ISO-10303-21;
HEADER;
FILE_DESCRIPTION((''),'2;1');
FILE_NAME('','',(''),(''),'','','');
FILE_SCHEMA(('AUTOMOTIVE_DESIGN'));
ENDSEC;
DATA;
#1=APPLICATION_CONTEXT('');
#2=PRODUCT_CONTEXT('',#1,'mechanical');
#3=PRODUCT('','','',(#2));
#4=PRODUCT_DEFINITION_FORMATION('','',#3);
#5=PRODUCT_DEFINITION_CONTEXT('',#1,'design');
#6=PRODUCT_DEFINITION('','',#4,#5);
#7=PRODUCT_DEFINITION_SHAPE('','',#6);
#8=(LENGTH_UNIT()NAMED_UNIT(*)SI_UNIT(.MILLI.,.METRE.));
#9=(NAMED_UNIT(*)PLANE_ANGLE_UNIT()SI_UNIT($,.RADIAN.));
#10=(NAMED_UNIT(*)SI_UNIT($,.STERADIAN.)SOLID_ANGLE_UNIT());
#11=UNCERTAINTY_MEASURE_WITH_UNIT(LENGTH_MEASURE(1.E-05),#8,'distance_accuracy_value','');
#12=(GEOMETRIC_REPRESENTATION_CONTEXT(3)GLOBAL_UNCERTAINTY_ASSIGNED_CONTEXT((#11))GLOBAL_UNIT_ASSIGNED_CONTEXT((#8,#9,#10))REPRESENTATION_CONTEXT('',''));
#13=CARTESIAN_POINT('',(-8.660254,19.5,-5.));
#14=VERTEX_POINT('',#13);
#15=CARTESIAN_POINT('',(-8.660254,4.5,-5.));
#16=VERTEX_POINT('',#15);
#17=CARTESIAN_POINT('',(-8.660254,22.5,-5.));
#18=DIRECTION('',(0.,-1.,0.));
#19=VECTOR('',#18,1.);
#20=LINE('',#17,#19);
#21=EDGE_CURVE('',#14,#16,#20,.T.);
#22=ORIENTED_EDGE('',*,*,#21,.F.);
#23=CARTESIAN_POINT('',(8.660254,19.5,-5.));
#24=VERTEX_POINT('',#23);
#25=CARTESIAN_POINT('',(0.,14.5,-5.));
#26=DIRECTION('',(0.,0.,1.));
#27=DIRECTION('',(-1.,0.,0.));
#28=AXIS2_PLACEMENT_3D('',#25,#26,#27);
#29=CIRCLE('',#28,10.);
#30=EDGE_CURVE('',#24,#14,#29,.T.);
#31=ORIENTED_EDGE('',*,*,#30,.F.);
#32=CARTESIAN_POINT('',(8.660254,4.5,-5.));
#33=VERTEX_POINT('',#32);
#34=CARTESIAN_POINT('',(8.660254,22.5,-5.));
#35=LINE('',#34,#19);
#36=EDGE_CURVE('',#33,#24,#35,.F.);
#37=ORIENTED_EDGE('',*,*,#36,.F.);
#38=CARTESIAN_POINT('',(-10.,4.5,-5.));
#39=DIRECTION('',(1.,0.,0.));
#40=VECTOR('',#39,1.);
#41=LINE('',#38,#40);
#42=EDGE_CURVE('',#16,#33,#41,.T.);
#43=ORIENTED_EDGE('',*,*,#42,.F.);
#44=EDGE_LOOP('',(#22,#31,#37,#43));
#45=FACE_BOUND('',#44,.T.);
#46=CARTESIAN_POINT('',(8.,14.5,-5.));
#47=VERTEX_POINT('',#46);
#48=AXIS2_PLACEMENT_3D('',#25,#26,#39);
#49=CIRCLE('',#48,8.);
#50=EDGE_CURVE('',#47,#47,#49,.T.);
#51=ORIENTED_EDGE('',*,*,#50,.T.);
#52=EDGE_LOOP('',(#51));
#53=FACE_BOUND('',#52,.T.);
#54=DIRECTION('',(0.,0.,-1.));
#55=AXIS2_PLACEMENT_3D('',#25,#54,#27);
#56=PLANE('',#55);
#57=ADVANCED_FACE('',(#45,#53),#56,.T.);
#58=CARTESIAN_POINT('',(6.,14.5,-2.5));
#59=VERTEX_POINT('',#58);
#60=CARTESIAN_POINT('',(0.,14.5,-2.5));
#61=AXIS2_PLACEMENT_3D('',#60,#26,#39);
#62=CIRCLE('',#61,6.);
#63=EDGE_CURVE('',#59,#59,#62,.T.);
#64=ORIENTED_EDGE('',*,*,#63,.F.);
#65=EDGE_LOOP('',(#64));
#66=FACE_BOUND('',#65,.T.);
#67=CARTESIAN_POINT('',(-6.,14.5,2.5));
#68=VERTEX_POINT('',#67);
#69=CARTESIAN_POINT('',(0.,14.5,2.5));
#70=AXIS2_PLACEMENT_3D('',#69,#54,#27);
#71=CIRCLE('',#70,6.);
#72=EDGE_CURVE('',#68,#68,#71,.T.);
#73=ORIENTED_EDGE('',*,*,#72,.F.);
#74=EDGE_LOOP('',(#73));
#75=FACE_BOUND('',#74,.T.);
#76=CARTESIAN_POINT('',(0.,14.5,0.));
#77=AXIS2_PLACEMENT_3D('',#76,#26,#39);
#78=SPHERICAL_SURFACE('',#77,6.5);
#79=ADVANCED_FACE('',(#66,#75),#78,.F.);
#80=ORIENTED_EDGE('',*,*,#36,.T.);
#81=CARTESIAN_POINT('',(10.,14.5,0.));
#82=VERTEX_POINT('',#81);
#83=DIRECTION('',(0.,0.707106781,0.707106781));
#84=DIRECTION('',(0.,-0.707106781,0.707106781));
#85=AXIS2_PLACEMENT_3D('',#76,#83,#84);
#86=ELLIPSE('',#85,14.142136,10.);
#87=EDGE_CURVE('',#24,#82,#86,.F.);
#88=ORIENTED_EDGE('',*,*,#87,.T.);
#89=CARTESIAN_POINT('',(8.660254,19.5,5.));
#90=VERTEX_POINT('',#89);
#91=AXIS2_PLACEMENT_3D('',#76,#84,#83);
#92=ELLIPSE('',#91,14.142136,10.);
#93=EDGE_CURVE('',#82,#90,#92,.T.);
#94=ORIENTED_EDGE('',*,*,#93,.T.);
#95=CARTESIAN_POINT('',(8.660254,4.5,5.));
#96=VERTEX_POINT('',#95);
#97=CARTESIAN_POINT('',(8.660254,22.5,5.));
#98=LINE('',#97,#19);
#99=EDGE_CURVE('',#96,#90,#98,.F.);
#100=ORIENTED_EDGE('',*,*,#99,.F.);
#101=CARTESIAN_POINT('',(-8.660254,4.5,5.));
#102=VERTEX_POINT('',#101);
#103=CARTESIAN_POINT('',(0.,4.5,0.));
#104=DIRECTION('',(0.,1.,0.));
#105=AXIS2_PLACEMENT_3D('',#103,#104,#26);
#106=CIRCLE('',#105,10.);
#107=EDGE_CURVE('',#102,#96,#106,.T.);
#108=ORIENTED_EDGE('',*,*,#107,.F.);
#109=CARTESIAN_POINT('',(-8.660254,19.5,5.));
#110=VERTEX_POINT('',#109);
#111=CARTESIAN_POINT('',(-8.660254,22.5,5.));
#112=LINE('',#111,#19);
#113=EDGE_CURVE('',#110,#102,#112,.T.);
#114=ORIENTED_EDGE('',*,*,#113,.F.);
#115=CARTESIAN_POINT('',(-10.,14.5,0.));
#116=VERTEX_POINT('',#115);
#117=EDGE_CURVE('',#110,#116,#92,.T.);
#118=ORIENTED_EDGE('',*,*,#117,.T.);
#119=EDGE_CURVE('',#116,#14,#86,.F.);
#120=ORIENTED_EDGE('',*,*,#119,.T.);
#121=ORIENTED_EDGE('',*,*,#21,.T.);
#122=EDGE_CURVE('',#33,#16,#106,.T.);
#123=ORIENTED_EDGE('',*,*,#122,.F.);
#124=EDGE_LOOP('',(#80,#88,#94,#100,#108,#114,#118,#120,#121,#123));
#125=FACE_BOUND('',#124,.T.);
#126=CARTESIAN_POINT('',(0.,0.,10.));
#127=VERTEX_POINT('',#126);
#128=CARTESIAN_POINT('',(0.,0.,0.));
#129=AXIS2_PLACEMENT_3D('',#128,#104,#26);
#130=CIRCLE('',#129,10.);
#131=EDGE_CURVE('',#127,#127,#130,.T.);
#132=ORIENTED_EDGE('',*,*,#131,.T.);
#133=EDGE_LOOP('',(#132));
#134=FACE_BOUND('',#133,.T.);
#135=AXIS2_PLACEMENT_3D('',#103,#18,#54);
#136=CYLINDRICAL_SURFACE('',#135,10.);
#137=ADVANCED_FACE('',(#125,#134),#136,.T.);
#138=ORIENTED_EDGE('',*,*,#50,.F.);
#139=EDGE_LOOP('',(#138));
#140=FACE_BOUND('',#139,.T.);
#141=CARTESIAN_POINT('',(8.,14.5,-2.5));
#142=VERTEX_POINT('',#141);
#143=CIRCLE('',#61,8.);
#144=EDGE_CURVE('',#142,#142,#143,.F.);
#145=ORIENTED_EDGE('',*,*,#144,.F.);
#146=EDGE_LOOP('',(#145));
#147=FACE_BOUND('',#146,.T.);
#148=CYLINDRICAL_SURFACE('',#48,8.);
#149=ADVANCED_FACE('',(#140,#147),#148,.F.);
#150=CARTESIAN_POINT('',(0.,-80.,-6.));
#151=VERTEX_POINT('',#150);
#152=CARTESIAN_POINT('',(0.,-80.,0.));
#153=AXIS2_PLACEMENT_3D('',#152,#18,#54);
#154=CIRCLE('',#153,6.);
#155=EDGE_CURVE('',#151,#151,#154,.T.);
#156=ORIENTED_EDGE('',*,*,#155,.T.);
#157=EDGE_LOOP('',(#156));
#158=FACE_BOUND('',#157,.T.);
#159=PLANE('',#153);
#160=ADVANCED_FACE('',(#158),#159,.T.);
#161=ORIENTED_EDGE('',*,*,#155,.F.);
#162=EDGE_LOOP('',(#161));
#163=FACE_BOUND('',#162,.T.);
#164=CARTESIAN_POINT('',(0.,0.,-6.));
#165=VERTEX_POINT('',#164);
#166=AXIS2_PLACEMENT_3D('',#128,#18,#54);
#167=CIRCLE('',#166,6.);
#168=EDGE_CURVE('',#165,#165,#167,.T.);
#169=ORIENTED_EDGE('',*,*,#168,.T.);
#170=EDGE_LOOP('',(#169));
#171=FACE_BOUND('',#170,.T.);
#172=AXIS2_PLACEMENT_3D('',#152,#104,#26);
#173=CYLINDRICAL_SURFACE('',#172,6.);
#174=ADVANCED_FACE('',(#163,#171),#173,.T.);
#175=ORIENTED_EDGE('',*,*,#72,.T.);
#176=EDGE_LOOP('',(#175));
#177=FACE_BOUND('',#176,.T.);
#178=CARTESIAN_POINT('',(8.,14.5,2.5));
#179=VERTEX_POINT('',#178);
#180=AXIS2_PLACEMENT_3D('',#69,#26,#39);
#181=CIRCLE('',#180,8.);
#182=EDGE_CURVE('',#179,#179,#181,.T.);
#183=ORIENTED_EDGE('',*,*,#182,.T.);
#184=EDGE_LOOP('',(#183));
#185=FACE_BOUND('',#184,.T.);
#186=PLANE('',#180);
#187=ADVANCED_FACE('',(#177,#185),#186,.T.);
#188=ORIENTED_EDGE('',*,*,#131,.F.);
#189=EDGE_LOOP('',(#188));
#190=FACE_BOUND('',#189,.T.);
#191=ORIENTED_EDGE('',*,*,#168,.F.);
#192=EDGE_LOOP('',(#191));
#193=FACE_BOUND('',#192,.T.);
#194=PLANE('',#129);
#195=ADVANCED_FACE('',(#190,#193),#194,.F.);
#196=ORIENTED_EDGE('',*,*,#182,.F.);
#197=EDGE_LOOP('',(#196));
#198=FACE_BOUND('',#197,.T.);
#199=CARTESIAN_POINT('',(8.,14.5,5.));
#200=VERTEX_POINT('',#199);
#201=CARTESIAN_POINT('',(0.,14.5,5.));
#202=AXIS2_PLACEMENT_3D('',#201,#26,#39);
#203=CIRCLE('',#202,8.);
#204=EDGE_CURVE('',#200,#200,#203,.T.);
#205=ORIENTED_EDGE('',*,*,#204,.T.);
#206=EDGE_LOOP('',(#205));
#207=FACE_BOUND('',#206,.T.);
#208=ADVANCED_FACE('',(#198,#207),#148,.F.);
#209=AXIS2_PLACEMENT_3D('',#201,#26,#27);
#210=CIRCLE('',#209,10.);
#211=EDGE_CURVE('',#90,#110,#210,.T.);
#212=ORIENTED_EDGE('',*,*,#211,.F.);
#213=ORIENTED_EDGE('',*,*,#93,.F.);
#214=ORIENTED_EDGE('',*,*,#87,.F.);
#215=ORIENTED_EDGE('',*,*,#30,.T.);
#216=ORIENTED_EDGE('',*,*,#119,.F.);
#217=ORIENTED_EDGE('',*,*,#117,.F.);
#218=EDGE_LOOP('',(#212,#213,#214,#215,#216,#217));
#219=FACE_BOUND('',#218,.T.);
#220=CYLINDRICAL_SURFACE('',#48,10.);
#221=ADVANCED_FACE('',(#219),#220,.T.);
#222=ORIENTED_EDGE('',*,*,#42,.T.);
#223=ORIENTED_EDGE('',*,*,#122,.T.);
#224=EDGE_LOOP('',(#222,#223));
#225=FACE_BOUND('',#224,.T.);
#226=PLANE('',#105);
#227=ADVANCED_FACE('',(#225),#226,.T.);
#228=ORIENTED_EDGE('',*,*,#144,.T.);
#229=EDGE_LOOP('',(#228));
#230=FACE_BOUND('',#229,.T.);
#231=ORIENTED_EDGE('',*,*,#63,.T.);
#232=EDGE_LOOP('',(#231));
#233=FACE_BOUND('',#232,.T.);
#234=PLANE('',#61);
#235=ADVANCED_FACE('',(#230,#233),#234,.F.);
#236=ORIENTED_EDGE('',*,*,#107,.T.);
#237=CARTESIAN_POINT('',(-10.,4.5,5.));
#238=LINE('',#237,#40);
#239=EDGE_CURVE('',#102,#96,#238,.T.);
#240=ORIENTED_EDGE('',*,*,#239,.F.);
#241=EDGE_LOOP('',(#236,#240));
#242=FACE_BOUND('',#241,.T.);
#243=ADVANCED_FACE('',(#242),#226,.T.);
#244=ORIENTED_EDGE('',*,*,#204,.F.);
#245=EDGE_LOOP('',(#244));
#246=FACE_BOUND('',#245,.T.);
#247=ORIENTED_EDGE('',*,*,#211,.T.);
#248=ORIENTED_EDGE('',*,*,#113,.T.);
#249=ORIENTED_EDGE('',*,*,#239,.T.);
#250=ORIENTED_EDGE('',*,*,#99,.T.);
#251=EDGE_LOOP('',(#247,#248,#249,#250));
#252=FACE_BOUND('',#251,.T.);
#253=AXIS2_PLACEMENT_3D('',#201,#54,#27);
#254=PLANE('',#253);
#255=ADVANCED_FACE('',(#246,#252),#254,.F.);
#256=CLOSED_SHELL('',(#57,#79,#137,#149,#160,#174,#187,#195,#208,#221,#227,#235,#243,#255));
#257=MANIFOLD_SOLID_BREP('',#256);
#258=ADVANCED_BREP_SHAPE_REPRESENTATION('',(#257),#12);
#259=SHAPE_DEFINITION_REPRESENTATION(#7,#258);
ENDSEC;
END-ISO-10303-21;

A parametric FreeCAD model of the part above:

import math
import FreeCAD as App
import Part
import Sketcher

doc = App.newDocument("Part")
body = doc.addObject("PartDesign::Body", "Body")

# Sketch on XZ plane
sketch1 = doc.addObject("Sketcher::SketchObject", "Sketch")
body.addObject(sketch1)
sketch1.AttachmentSupport = (doc.XZ_Plane, [""])
sketch1.MapMode = "FlatFace"
sketch1.addGeometry(Part.Circle(App.Vector(0, 0, 0), App.Vector(0, 0, 1), 10), False)
sketch1.addConstraint([
    Sketcher.Constraint("Coincident", 0, 3, -1, 1),
    Sketcher.Constraint("Diameter", 0, 20.0),
])
pad1 = doc.addObject("PartDesign::Pad", "Pad")
body.addObject(pad1)
pad1.Profile = sketch1
pad1.Length = 4.5
pad1.Reversed = True

# Sketch on XY plane
sketch2 = doc.addObject("Sketcher::SketchObject", "Sketch001")
body.addObject(sketch2)
sketch2.AttachmentSupport = (doc.XY_Plane, [""])
sketch2.MapMode = "FlatFace"
sketch2.addGeometry([
    Part.LineSegment(App.Vector(-10, 4, 0), App.Vector(10, 4, 0)),  # 0
    Part.LineSegment(App.Vector(10, 4, 0), App.Vector(10, 14, 0)),  # 1
    Part.ArcOfCircle(Part.Circle(App.Vector(0, 14, 0), App.Vector(0, 0, 1), 10), math.radians(0), math.radians(180)),  # 2
    Part.LineSegment(App.Vector(-10, 14, 0), App.Vector(-10, 4, 0)),  # 3
    Part.Circle(App.Vector(0, 14, 0), App.Vector(0, 0, 1), 8),  # 4
], False)
sketch2.addConstraint([
    Sketcher.Constraint("Coincident", 0, 2, 1, 1),
    Sketcher.Constraint("Tangent", 1, 2, 2, 1),
    Sketcher.Constraint("Tangent", 2, 2, 3, 1),
    Sketcher.Constraint("Coincident", 3, 2, 0, 1),
    Sketcher.Constraint("Horizontal", 0),
    Sketcher.Constraint("Vertical", 1),
    Sketcher.Constraint("Vertical", 3),
    Sketcher.Constraint("Coincident", 4, 3, 2, 3),
    Sketcher.Constraint("PointOnObject", 2, 3, -2),
    Sketcher.Constraint("Diameter", 4, 16.0),
    Sketcher.Constraint("Radius", 2, 10.0),
    Sketcher.Constraint("DistanceY", 1, 1, 1, 2, 10.0),
    Sketcher.Constraint("DistanceY", -1, 1, 2, 3, 14.5),
])
pad2 = doc.addObject("PartDesign::Pad", "Pad001")
body.addObject(pad2)
pad2.Profile = sketch2
pad2.Length = 10
pad2.Midplane = True

# Sketch on XY plane
sketch3 = doc.addObject("Sketcher::SketchObject", "Sketch002")
body.addObject(sketch3)
sketch3.AttachmentSupport = (doc.XY_Plane, [""])
sketch3.MapMode = "FlatFace"
sketch3.addGeometry(Part.Circle(App.Vector(0, 14, 0), App.Vector(0, 0, 1), 8), False)
sketch3.addConstraint([
    Sketcher.Constraint("PointOnObject", 0, 3, -2),
    Sketcher.Constraint("Diameter", 0, 16.0),
    Sketcher.Constraint("DistanceY", -1, 1, 0, 3, 14.5),
])
pad3 = doc.addObject("PartDesign::Pad", "Pad002")
body.addObject(pad3)
pad3.Profile = sketch3
pad3.Length = 5
pad3.Midplane = True

# Sketch on XY plane
sketch4 = doc.addObject("Sketcher::SketchObject", "Sketch003")
body.addObject(sketch4)
sketch4.AttachmentSupport = (doc.XY_Plane, [""])
sketch4.MapMode = "FlatFace"
sketch4.AttachmentOffset = App.Placement(App.Vector(0, 0, 4.5), App.Rotation())
sketch4.addGeometry(Part.Circle(App.Vector(0, 14.5, 0), App.Vector(0, 0, 1), 4), False)
sketch4.addConstraint([
    Sketcher.Constraint("PointOnObject", 0, 3, -2),
    Sketcher.Constraint("Diameter", 0, 8.0),
    Sketcher.Constraint("DistanceY", -1, 1, 0, 3, 14.5),
])

# Sketch on XY plane
sketch5 = doc.addObject("Sketcher::SketchObject", "Sketch004")
body.addObject(sketch5)
sketch5.AttachmentSupport = (doc.XY_Plane, [""])
sketch5.MapMode = "FlatFace"
sketch5.AttachmentOffset = App.Placement(App.Vector(0, 0, 2.5), App.Rotation())
sketch5.addGeometry(Part.Circle(App.Vector(0, 14, 0), App.Vector(0, 0, 1), 6), False)
sketch5.addConstraint([
    Sketcher.Constraint("PointOnObject", 0, 3, -2),
    Sketcher.Constraint("Diameter", 0, 12.0),
    Sketcher.Constraint("DistanceY", -1, 1, 0, 3, 14.5),
])

additiveloft = doc.addObject("PartDesign::AdditiveLoft", "AdditiveLoft")
body.addObject(additiveloft)
additiveloft.Profile = sketch4
additiveloft.Sections = [sketch5]
doc.recompute()

mirrored = doc.addObject("PartDesign::Mirrored", "Mirrored")
body.addObject(mirrored)
mirrored.Originals = [additiveloft]
mirrored.MirrorPlane = (doc.XY_Plane, [""])
body.Tip = mirrored

# Sketch on XZ plane
sketch6 = doc.addObject("Sketcher::SketchObject", "Sketch005")
body.addObject(sketch6)
sketch6.AttachmentSupport = (doc.XZ_Plane, [""])
sketch6.MapMode = "FlatFace"
sketch6.AttachmentOffset = App.Placement(App.Vector(0, 0, -4.5), App.Rotation())
sketch6.addGeometry([
    Part.Circle(App.Vector(0, 0, 0), App.Vector(0, 0, 1), 15),
    Part.Circle(App.Vector(0, 0, 0), App.Vector(0, 0, 1), 10),
], False)
sketch6.addConstraint([
    Sketcher.Constraint("Coincident", 0, 3, -1, 1),
    Sketcher.Constraint("Coincident", 1, 3, -1, 1),
    Sketcher.Constraint("Diameter", 1, 20.0),
    Sketcher.Constraint("Diameter", 0, 29.254465),
])
pocket1 = doc.addObject("PartDesign::Pocket", "Pocket")
body.addObject(pocket1)
pocket1.Profile = sketch6
pocket1.Length = 18

# Sketch on XY plane
sketch7 = doc.addObject("Sketcher::SketchObject", "Sketch006")
body.addObject(sketch7)
sketch7.AttachmentSupport = (doc.XY_Plane, [""])
sketch7.MapMode = "FlatFace"
sketch7.AttachmentOffset = App.Placement(App.Vector(0, 0, 4.5), App.Rotation())
sketch7.addGeometry(Part.Circle(App.Vector(0, 14.5, 0), App.Vector(0, 0, 1), 2.5), False)
sketch7.addConstraint([
    Sketcher.Constraint("PointOnObject", 0, 3, -2),
    Sketcher.Constraint("Diameter", 0, 5.0),
    Sketcher.Constraint("DistanceY", -1, 1, 0, 3, 14.5),
])
pocket2 = doc.addObject("PartDesign::Pocket", "Pocket001")
body.addObject(pocket2)
pocket2.Profile = sketch7
pocket2.Length = 10

# Sketch on XZ plane
sketch8 = doc.addObject("Sketcher::SketchObject", "Sketch007")
body.addObject(sketch8)
sketch8.AttachmentSupport = (doc.XZ_Plane, [""])
sketch8.MapMode = "FlatFace"
sketch8.addGeometry(Part.Circle(App.Vector(0, 0, 0), App.Vector(0, 0, 1), 6), False)
sketch8.addConstraint([
    Sketcher.Constraint("Coincident", 0, 3, -1, 1),
    Sketcher.Constraint("Diameter", 0, 12.0),
])
pad4 = doc.addObject("PartDesign::Pad", "Pad003")
body.addObject(pad4)
pad4.Profile = sketch8
pad4.Length = 80

# Sketch on XY plane
sketch9 = doc.addObject("Sketcher::SketchObject", "Sketch008")
body.addObject(sketch9)
sketch9.AttachmentSupport = (doc.XY_Plane, [""])
sketch9.MapMode = "FlatFace"
sketch9.AttachmentOffset = App.Placement(App.Vector(0, 0, 4.5), App.Rotation())
sketch9.addGeometry(Part.Circle(App.Vector(0, 14, 0), App.Vector(0, 0, 1), 6), False)
sketch9.addConstraint([
    Sketcher.Constraint("PointOnObject", 0, 3, -2),
    Sketcher.Constraint("Diameter", 0, 12.0),
    Sketcher.Constraint("DistanceY", -1, 1, 0, 3, 14.5),
])
pocket3 = doc.addObject("PartDesign::Pocket", "Pocket002")
body.addObject(pocket3)
pocket3.Profile = sketch9
pocket3.Length = 36

# Sketch on XY plane
sketch10 = doc.addObject("Sketcher::SketchObject", "Sketch009")
body.addObject(sketch10)
sketch10.AttachmentSupport = (doc.XY_Plane, [""])
sketch10.MapMode = "FlatFace"
sketch10.addGeometry([
    Part.LineSegment(App.Vector(0, 21, 0), App.Vector(0, 8, 0)),
    Part.ArcOfCircle(Part.Circle(App.Vector(0, 14, 0), App.Vector(0, 0, 1), 6), math.radians(-90), math.radians(90)),
], False)
sketch10.addConstraint([
    Sketcher.Constraint("Coincident", 0, 1, 1, 2),
    Sketcher.Constraint("Coincident", 1, 1, 0, 2),
    Sketcher.Constraint("Vertical", 0),
    Sketcher.Constraint("PointOnObject", 1, 3, -2),
    Sketcher.Constraint("PointOnObject", 0, 1, -2),
    Sketcher.Constraint("Radius", 1, 6.5),
    Sketcher.Constraint("DistanceY", -1, 1, 0, 1, 21.0),
])
groove = doc.addObject("PartDesign::Groove", "Groove")
body.addObject(groove)
groove.Profile = sketch10
groove.ReferenceAxis = (sketch10, ["V_Axis"])
groove.Angle = 360

doc.recompute()
